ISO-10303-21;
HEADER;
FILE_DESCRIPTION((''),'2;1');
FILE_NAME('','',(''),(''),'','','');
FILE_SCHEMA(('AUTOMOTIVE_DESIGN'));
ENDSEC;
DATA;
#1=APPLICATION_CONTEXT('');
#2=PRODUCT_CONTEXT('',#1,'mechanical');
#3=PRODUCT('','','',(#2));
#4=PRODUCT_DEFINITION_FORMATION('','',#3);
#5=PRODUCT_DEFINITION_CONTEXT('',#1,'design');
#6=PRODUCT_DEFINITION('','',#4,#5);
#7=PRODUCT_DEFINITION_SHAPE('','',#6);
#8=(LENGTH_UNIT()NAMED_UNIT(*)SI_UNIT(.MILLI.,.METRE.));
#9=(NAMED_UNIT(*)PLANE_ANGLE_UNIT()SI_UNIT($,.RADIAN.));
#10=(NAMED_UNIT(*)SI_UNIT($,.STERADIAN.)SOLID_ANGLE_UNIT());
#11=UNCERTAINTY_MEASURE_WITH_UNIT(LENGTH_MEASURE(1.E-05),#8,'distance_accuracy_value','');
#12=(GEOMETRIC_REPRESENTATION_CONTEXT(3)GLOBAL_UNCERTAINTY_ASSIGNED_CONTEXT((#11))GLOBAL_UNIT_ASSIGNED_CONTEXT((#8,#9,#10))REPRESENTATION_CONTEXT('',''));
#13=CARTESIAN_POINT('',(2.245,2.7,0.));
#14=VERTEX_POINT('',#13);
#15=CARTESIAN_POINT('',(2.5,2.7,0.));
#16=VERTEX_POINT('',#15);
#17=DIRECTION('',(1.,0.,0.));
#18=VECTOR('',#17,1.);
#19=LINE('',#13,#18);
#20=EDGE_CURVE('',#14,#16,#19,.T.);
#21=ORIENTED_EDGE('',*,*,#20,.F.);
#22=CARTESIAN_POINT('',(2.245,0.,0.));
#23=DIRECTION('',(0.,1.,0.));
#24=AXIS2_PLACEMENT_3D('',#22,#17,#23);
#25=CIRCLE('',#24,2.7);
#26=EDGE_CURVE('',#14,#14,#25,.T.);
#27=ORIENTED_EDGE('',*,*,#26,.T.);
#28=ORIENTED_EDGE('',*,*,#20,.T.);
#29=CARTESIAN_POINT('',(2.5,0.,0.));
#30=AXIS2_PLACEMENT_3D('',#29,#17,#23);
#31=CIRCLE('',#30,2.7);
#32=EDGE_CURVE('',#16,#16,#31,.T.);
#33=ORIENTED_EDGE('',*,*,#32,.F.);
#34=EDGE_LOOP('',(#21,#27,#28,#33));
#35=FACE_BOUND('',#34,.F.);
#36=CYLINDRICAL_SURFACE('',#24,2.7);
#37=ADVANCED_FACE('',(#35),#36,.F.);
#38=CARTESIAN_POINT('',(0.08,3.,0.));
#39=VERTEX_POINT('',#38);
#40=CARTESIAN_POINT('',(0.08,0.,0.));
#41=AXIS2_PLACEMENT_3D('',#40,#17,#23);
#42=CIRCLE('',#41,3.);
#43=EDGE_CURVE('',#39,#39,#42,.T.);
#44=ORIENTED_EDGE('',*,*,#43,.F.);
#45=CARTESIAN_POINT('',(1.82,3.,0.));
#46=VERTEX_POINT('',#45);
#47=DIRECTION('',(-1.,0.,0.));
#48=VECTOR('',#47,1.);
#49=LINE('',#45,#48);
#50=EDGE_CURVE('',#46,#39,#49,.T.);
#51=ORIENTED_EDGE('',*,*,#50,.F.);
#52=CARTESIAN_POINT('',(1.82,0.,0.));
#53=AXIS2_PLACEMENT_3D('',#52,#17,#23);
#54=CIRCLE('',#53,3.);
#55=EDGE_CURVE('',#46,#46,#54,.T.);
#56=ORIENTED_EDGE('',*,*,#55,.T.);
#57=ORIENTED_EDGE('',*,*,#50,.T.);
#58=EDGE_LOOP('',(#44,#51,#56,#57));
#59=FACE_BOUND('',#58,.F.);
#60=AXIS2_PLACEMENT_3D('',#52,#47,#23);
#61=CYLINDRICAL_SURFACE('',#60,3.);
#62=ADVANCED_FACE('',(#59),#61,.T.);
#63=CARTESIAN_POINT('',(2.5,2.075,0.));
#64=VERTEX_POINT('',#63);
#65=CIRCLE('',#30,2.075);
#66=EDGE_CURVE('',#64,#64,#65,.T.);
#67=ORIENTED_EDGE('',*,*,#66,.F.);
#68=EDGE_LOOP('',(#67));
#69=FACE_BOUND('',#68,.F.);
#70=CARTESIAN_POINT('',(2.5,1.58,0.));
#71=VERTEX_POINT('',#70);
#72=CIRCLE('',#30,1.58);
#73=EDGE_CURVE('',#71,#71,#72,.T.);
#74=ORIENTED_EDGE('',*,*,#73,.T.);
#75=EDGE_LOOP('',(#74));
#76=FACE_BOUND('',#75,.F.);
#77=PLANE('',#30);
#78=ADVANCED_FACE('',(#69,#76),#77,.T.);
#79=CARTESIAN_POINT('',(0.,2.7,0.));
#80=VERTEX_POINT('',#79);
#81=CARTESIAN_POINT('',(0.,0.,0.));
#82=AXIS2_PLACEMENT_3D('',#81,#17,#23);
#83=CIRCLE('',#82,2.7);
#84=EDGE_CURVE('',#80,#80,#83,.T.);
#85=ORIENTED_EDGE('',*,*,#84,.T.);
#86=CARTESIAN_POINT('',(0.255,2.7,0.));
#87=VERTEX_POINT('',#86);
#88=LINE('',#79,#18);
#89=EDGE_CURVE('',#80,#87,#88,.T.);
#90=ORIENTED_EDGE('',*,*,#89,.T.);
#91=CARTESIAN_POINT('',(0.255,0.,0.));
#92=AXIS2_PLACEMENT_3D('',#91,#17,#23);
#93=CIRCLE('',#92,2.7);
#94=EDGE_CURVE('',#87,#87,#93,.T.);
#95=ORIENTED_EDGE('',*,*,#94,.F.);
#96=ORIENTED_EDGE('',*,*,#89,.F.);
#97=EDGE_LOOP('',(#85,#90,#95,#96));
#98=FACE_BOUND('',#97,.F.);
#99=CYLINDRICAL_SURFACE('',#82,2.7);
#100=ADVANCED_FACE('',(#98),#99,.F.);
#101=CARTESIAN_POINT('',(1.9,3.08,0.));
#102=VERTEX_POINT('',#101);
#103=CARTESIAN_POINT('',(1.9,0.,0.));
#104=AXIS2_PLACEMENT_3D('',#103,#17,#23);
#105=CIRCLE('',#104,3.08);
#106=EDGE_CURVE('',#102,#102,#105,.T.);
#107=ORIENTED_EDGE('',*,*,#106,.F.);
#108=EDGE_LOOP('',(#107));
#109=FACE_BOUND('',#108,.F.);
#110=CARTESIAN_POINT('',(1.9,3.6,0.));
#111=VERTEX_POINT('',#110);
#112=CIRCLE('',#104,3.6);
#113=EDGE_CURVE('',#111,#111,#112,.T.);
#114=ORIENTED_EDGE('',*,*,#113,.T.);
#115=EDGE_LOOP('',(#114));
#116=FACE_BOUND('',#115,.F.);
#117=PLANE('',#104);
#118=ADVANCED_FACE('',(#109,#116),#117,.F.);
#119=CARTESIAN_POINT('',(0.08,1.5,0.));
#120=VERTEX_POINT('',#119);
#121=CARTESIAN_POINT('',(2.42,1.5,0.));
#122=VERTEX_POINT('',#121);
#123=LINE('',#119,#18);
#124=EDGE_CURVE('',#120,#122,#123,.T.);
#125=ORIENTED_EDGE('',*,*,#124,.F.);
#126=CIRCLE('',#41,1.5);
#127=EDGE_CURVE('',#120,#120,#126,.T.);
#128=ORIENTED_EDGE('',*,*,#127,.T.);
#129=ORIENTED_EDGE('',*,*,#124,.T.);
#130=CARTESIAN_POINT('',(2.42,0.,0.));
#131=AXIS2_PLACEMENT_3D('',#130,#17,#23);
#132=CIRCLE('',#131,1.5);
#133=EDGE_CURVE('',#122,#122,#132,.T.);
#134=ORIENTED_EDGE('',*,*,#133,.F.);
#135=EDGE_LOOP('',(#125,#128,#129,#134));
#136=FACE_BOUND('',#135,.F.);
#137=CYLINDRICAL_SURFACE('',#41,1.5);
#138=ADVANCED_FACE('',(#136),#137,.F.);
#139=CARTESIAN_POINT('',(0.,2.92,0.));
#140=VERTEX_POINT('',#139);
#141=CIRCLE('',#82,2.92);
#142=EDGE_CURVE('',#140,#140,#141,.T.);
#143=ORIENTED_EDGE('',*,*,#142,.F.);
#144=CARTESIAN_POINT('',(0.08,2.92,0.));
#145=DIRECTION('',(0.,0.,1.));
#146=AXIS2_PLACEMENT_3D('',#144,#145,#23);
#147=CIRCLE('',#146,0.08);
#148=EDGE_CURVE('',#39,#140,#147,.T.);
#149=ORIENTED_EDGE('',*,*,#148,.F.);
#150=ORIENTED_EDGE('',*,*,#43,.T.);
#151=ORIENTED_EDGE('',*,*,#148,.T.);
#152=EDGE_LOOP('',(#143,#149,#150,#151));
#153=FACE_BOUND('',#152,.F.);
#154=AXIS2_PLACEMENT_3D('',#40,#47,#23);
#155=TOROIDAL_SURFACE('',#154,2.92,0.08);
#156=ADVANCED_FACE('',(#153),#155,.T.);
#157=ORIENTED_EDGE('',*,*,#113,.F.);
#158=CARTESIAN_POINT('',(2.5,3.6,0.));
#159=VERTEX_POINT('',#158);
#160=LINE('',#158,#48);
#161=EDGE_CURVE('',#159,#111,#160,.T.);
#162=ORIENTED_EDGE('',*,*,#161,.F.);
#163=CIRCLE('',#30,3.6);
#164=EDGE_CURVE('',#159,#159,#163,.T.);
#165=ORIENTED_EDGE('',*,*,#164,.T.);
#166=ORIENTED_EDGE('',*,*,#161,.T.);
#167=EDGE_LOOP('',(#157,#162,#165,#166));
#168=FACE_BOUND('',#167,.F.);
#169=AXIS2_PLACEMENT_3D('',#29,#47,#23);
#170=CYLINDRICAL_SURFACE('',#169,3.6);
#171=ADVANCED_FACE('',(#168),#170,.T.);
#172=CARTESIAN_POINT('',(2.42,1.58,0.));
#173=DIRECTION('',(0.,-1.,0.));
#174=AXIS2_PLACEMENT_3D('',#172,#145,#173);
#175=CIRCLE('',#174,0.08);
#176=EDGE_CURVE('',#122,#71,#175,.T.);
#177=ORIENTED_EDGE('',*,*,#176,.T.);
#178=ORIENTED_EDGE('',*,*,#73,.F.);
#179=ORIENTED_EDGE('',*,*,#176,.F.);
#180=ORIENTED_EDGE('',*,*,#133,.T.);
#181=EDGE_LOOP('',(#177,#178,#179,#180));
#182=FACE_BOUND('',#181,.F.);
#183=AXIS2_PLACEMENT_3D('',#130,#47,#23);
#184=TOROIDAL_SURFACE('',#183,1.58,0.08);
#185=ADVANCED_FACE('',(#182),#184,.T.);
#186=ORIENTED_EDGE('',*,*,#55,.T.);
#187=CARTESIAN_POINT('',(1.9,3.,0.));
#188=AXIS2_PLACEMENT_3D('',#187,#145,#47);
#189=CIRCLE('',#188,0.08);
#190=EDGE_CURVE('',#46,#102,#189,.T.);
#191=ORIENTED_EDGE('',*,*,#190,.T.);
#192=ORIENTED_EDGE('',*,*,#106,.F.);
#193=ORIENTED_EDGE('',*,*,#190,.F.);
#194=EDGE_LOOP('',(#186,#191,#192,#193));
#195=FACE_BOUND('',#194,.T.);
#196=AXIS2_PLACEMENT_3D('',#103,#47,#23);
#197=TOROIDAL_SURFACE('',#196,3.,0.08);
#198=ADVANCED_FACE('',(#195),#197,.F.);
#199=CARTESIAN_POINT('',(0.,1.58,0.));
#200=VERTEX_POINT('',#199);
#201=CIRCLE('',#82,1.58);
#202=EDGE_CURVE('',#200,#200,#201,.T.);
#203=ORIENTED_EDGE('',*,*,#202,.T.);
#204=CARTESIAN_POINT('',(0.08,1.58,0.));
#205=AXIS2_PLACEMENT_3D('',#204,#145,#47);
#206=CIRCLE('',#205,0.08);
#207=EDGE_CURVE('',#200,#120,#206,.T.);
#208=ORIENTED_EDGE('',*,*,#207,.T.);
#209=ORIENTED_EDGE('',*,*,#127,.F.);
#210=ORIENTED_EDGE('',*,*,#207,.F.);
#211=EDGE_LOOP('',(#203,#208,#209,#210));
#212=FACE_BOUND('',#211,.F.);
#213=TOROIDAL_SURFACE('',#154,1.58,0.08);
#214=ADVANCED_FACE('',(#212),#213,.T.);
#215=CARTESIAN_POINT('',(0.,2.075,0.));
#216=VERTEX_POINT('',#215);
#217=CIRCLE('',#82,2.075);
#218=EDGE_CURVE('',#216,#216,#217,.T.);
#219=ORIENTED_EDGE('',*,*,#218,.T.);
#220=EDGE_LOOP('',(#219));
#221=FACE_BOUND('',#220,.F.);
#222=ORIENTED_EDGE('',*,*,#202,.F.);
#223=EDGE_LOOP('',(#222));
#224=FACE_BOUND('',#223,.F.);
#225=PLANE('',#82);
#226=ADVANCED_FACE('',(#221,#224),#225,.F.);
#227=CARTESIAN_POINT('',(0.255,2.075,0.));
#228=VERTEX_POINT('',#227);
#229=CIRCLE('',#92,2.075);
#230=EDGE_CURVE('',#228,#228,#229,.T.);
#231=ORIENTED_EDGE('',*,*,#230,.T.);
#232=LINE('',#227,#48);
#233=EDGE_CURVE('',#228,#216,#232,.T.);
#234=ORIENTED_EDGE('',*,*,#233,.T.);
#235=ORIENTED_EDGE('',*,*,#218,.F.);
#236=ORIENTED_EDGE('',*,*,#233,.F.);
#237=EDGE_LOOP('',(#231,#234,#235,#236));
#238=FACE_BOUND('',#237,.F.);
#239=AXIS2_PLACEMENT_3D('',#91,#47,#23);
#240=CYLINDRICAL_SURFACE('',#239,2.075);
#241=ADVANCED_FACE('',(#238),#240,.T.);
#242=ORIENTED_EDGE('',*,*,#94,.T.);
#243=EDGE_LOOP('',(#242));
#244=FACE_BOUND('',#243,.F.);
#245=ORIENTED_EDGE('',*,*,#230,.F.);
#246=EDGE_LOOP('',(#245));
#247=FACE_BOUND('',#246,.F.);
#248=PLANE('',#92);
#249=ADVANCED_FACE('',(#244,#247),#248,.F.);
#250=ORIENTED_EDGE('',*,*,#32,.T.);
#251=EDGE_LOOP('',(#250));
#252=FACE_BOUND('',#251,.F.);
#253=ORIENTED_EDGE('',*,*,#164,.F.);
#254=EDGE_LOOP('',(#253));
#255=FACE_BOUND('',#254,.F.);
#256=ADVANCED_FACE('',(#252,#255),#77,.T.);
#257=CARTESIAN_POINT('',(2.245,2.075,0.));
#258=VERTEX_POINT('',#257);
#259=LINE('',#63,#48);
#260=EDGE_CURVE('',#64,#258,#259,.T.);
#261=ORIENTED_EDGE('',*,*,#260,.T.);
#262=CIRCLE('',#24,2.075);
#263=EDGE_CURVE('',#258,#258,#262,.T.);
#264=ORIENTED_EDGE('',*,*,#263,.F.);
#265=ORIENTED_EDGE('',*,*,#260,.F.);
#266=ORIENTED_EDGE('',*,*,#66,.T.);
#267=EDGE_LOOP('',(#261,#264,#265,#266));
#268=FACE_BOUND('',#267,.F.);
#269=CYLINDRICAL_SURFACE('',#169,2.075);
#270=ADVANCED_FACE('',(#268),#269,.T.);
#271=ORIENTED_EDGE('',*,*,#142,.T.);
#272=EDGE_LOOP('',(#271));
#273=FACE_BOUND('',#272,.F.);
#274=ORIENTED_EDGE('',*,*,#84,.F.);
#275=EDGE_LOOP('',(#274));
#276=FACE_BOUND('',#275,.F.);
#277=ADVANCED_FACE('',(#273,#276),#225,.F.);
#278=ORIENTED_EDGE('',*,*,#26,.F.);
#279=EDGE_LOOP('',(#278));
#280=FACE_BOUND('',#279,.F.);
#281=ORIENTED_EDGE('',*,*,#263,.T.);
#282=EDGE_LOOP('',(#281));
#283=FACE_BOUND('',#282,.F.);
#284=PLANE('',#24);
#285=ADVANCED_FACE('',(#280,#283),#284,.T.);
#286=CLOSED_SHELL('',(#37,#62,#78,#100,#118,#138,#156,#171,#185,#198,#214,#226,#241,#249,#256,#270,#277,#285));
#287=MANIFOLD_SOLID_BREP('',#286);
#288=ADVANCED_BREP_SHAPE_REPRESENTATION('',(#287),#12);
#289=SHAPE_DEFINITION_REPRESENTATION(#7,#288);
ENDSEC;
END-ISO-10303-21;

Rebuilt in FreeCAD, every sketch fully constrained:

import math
import FreeCAD as App
import Part
import Sketcher

V = App.Vector

doc = App.newDocument("Part")
params = doc.addObject("Spreadsheet::Sheet", "Params")
for row, (alias, value) in enumerate([
    ("sketch1_radius", "0.08 mm"),
    ("sketch1_width", "0.6 mm"),
    ("sketch1_height", "0.9 mm"),
    ("sketch1_width2", "2.34 mm"),
    ("sketch1_height2", "0.52 mm"),
    ("revolution_angle", "360 deg"),
], start=1):
    params.set(f"A{row}", alias)
    params.set(f"B{row}", "=" + value)
    params.setAlias(f"B{row}", alias)

body = doc.addObject("PartDesign::Body", "Body")

sketch1 = body.newObject("Sketcher::SketchObject", "Sketch")
sketch1.AttachmentSupport = (doc.getObject("XY_Plane"), [""])
sketch1.MapMode = "FlatFace"
sketch1.addGeometry(Part.LineSegment(V(0, 2.08, 0), V(0, 1.58, 0)), False)
sketch1.addGeometry(Part.ArcOfCircle(Part.Circle(V(0.08, 1.58, 0), V(0, 0, 1), 0.08), math.radians(180), math.radians(270)), False)
sketch1.addGeometry(Part.LineSegment(V(0.08, 1.5, 0), V(2.42, 1.5, 0)), False)
sketch1.addGeometry(Part.ArcOfCircle(Part.Circle(V(2.42, 1.58, 0), V(0, 0, 1), 0.08), math.radians(-90), math.radians(0)), False)
sketch1.addGeometry(Part.LineSegment(V(2.5, 1.58, 0), V(2.5, 2.08, 0)), False)
sketch1.addGeometry(Part.LineSegment(V(2.5, 2.08, 0), V(2.25, 2.08, 0)), False)
sketch1.addGeometry(Part.LineSegment(V(2.25, 2.08, 0), V(2.25, 2.7, 0)), False)
sketch1.addGeometry(Part.LineSegment(V(2.25, 2.7, 0), V(2.5, 2.7, 0)), False)
sketch1.addGeometry(Part.LineSegment(V(2.5, 2.7, 0), V(2.5, 3.6, 0)), False)
sketch1.addGeometry(Part.LineSegment(V(2.5, 3.6, 0), V(1.9, 3.6, 0)), False)
sketch1.addGeometry(Part.LineSegment(V(1.9, 3.6, 0), V(1.9, 3.08, 0)), False)
sketch1.addGeometry(Part.ArcOfCircle(Part.Circle(V(1.9, 3, 0), V(0, 0, 1), 0.08), math.radians(180), math.radians(450)), False)
sketch1.addGeometry(Part.LineSegment(V(1.82, 3, 0), V(0.08, 3, 0)), False)
sketch1.addGeometry(Part.ArcOfCircle(Part.Circle(V(0.08, 2.92, 0), V(0, 0, 1), 0.08), math.radians(90), math.radians(180)), False)
sketch1.addGeometry(Part.LineSegment(V(0, 2.92, 0), V(0, 2.7, 0)), False)
sketch1.addGeometry(Part.LineSegment(V(0, 2.7, 0), V(0.26, 2.7, 0)), False)
sketch1.addGeometry(Part.LineSegment(V(0.26, 2.7, 0), V(0.26, 2.08, 0)), False)
sketch1.addGeometry(Part.LineSegment(V(0.26, 2.08, 0), V(0, 2.08, 0)), False)
sketch1.addConstraint(Sketcher.Constraint("Tangent", 0, 2, 1, 1))
sketch1.addConstraint(Sketcher.Constraint("Tangent", 1, 2, 2, 1))
sketch1.addConstraint(Sketcher.Constraint("Tangent", 2, 2, 3, 1))
sketch1.addConstraint(Sketcher.Constraint("Tangent", 3, 2, 4, 1))
sketch1.addConstraint(Sketcher.Constraint("Coincident", 4, 2, 5, 1))
sketch1.addConstraint(Sketcher.Constraint("Coincident", 5, 2, 6, 1))
sketch1.addConstraint(Sketcher.Constraint("Coincident", 6, 2, 7, 1))
sketch1.addConstraint(Sketcher.Constraint("Coincident", 7, 2, 8, 1))
sketch1.addConstraint(Sketcher.Constraint("Coincident", 8, 2, 9, 1))
sketch1.addConstraint(Sketcher.Constraint("Coincident", 9, 2, 10, 1))
sketch1.addConstraint(Sketcher.Constraint("Coincident", 10, 2, 11, 2))
sketch1.addConstraint(Sketcher.Constraint("Coincident", 11, 1, 12, 1))
sketch1.addConstraint(Sketcher.Constraint("Tangent", 12, 2, 13, 1))
sketch1.addConstraint(Sketcher.Constraint("Tangent", 13, 2, 14, 1))
sketch1.addConstraint(Sketcher.Constraint("Coincident", 14, 2, 15, 1))
sketch1.addConstraint(Sketcher.Constraint("Coincident", 15, 2, 16, 1))
sketch1.addConstraint(Sketcher.Constraint("Coincident", 16, 2, 17, 1))
sketch1.addConstraint(Sketcher.Constraint("Coincident", 17, 2, 0, 1))
sketch1.addConstraint(Sketcher.Constraint("Vertical", 0))
sketch1.addConstraint(Sketcher.Constraint("Horizontal", 2))
sketch1.addConstraint(Sketcher.Constraint("Vertical", 4))
sketch1.addConstraint(Sketcher.Constraint("Horizontal", 5))
sketch1.addConstraint(Sketcher.Constraint("Vertical", 6))
sketch1.addConstraint(Sketcher.Constraint("Horizontal", 7))
sketch1.addConstraint(Sketcher.Constraint("Vertical", 8))
sketch1.addConstraint(Sketcher.Constraint("Horizontal", 9))
sketch1.addConstraint(Sketcher.Constraint("Vertical", 10))
sketch1.addConstraint(Sketcher.Constraint("Horizontal", 12))
sketch1.addConstraint(Sketcher.Constraint("Vertical", 14))
sketch1.addConstraint(Sketcher.Constraint("Horizontal", 15))
sketch1.addConstraint(Sketcher.Constraint("Vertical", 16))
sketch1.addConstraint(Sketcher.Constraint("Horizontal", 17))
sketch1.addConstraint(Sketcher.Constraint("Equal", 1, 3))
sketch1.addConstraint(Sketcher.Constraint("Equal", 3, 11))
sketch1.addConstraint(Sketcher.Constraint("Equal", 11, 13))
sketch1.addConstraint(Sketcher.Constraint("PointOnObject", 0, 2, -2))
sketch1.addConstraint(Sketcher.Constraint("PointOnObject", 13, 2, -2))
sketch1.addConstraint(Sketcher.Constraint("Horizontal", 7, 2, 14, 2))
sketch1.addConstraint(Sketcher.Constraint("Horizontal", 5, 2, 16, 2))
sketch1.addConstraint(Sketcher.Constraint("Vertical", 4, 2, 7, 2))
sketch1.addConstraint(Sketcher.Constraint("Vertical", 11, 3, 9, 2))
sketch1.addConstraint(Sketcher.Constraint("Equal", 7, 15))
sketch1.addConstraint(Sketcher.Constraint("Radius", 1, 0.08))
sketch1.addConstraint(Sketcher.Constraint("DistanceX", 9, 2, 9, 1, 0.6))
sketch1.addConstraint(Sketcher.Constraint("DistanceY", 8, 1, 8, 2, 0.9))
sketch1.addConstraint(Sketcher.Constraint("DistanceY", -1, 1, 11, 3, 3.0))
sketch1.addConstraint(Sketcher.Constraint("DistanceY", -1, 1, 11, 1, 3.0))
sketch1.addConstraint(Sketcher.Constraint("DistanceX", 2, 1, 2, 2, 2.34))
sketch1.addConstraint(Sketcher.Constraint("DistanceY", 10, 2, 10, 1, 0.52))
sketch1.addConstraint(Sketcher.Constraint("DistanceY", -1, 1, 1, 2, 1.5))
sketch1.addConstraint(Sketcher.Constraint("DistanceX", 5, 2, 5, 1, 0.255))
sketch1.addConstraint(Sketcher.Constraint("DistanceY", 0, 2, 0, 1, 0.495))
sketch1.setExpression("Constraints[42]", "Params.sketch1_radius")
sketch1.setExpression("Constraints[43]", "Params.sketch1_width")
sketch1.setExpression("Constraints[44]", "Params.sketch1_height")
sketch1.setExpression("Constraints[47]", "Params.sketch1_width2")
sketch1.setExpression("Constraints[48]", "Params.sketch1_height2")
revolution = body.newObject("PartDesign::Revolution", "Revolution")
revolution.Profile = sketch1
revolution.ReferenceAxis = (sketch1, ["H_Axis"])
revolution.setExpression("Angle", "Params.revolution_angle")

doc.recompute()
